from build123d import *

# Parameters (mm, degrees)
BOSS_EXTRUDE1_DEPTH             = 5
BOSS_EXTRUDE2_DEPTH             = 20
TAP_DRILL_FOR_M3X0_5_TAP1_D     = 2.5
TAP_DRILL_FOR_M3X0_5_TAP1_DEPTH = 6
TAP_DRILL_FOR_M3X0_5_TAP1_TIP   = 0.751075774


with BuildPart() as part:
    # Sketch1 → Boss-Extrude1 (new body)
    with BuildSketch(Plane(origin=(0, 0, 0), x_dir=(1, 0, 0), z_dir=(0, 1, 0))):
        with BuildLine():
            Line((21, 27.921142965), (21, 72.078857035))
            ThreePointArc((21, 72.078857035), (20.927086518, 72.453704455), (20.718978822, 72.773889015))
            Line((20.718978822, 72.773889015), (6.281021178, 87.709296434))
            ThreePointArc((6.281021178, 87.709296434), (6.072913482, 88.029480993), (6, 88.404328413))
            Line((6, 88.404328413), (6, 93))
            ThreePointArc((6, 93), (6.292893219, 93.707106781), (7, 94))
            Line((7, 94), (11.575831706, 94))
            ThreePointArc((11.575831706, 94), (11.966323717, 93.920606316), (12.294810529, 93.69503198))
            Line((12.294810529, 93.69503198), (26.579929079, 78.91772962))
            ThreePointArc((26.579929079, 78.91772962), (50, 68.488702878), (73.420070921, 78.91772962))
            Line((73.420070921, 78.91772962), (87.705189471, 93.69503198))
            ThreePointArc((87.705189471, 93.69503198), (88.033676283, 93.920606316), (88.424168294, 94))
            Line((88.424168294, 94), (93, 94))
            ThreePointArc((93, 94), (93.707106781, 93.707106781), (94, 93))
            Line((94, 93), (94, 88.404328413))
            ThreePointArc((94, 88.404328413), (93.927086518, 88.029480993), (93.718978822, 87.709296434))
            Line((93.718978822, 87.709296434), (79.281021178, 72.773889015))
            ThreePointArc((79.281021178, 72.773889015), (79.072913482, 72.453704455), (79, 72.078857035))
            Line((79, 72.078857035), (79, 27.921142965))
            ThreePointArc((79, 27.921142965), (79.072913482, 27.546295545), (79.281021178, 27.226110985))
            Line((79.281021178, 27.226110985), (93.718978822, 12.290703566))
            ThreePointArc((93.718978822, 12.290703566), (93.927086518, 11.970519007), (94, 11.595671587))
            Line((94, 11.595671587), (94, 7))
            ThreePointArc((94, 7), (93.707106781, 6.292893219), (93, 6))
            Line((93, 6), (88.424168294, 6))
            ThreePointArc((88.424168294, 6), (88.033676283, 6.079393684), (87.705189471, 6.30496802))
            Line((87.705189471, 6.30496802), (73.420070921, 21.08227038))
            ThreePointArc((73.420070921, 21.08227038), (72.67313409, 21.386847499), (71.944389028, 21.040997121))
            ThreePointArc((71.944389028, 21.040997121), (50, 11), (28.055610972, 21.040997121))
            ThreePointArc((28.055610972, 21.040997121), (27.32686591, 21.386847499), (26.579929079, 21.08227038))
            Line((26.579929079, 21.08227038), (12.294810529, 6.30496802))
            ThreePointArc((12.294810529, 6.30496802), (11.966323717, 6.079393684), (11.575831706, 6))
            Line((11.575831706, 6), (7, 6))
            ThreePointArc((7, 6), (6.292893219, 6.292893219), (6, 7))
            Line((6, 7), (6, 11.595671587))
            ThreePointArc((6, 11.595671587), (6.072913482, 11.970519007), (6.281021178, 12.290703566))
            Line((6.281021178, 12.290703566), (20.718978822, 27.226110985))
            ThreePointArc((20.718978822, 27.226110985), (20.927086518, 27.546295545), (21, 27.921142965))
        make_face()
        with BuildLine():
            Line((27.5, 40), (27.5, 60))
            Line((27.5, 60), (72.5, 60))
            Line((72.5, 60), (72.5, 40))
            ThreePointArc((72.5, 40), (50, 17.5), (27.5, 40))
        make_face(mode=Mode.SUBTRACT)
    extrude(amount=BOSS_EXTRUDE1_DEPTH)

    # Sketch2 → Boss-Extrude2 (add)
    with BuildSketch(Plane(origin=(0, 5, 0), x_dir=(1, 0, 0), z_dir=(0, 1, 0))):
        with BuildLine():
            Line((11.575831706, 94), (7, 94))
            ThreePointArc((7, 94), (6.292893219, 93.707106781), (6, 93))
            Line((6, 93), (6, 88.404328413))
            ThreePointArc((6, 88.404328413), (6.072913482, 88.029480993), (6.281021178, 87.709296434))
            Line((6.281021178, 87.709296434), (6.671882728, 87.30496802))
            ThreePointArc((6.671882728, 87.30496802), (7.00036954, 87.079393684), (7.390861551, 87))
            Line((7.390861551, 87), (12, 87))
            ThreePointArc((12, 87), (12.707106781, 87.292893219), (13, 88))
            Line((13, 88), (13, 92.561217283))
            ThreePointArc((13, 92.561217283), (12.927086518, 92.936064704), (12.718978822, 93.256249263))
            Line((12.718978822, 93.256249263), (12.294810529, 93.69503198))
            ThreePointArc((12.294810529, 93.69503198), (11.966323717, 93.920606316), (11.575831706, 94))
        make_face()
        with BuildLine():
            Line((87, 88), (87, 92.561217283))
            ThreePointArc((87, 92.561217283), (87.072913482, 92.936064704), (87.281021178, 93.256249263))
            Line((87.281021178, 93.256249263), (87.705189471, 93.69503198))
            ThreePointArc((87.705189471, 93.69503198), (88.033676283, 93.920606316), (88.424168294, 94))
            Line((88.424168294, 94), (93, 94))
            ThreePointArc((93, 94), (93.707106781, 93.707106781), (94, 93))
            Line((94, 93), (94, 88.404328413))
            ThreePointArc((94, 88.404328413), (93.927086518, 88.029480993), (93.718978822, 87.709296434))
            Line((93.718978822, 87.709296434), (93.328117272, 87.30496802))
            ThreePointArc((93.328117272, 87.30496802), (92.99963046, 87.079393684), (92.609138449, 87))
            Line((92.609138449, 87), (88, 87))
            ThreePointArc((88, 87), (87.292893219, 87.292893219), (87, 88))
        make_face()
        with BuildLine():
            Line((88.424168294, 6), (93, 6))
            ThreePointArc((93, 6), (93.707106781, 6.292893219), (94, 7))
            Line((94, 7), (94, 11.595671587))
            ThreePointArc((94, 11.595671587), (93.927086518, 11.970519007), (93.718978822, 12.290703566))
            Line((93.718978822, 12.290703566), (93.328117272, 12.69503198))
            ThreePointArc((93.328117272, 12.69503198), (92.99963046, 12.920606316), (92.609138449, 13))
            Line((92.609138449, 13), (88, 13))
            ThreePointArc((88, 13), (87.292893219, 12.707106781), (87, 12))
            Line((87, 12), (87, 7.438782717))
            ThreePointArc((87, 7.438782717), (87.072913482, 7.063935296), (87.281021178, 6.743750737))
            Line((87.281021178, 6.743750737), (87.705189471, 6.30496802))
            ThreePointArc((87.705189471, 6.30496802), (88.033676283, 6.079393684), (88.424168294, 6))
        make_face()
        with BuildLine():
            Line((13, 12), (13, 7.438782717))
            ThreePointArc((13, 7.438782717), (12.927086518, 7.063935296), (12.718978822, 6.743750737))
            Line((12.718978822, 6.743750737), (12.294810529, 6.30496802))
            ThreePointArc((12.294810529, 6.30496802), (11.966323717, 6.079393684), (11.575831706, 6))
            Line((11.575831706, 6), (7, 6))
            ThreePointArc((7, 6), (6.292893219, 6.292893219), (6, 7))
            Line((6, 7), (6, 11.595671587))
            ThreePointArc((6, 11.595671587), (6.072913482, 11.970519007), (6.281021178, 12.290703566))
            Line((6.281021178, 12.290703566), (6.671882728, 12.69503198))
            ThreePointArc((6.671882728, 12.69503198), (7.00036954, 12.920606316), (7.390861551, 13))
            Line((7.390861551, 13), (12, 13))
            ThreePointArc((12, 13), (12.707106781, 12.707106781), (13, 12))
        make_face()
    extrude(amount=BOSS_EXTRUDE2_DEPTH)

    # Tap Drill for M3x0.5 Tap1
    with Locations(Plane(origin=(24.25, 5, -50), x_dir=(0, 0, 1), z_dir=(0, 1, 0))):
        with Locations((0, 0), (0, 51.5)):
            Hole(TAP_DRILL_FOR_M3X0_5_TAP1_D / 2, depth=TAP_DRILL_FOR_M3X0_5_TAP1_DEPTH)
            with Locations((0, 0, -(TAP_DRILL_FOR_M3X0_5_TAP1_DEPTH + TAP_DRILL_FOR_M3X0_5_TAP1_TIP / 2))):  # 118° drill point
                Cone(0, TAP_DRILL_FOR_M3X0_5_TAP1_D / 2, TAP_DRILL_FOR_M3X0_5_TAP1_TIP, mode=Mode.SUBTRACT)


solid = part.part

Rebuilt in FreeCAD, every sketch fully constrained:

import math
import FreeCAD as App
import Part
import Sketcher

V = App.Vector

doc = App.newDocument("Part")
body = doc.addObject("PartDesign::Body", "Body")

sketch1 = body.newObject("Sketcher::SketchObject", "Sketch")
sketch1.AttachmentSupport = (doc.getObject("XZ_Plane"), [""])
sketch1.MapMode = "FlatFace"
sketch1.addGeometry(Part.LineSegment(V(21, -72.1, 0), V(21, -27.9, 0)), False)
sketch1.addGeometry(Part.ArcOfCircle(Part.Circle(V(20, -27.9, 0), V(0, 0, 1), 1), math.radians(0), math.radians(44)), False)
sketch1.addGeometry(Part.LineSegment(V(20.7, -27.2, 0), V(6.3, -12.3, 0)), False)
sketch1.addGeometry(Part.ArcOfCircle(Part.Circle(V(7, -11.6, 0), V(0, 0, 1), 1), math.radians(180), math.radians(224)), False)
sketch1.addGeometry(Part.LineSegment(V(6, -11.6, 0), V(6, -7, 0)), False)
sketch1.addGeometry(Part.ArcOfCircle(Part.Circle(V(7, -7, 0), V(0, 0, 1), 1), math.radians(90), math.radians(180)), False)
sketch1.addGeometry(Part.LineSegment(V(7, -6, 0), V(11.6, -6, 0)), False)
sketch1.addGeometry(Part.ArcOfCircle(Part.Circle(V(11.6, -7, 0), V(0, 0, 1), 1), math.radians(44), math.radians(90)), False)
sketch1.addGeometry(Part.LineSegment(V(12.3, -6.3, 0), V(26.6, -21.1, 0)), False)
sketch1.addGeometry(Part.ArcOfCircle(Part.Circle(V(27.3, -20.4, 0), V(0, 0, 1), 1), math.radians(-136), math.radians(-41)), False)
sketch1.addGeometry(Part.ArcOfCircle(Part.Circle(V(50, -40, 0), V(0, 0, 1), 29), math.radians(41), math.radians(139)), False)
sketch1.addGeometry(Part.ArcOfCircle(Part.Circle(V(72.7, -20.4, 0), V(0, 0, 1), 1), math.radians(-139), math.radians(-44)), False)
sketch1.addGeometry(Part.LineSegment(V(73.4, -21.1, 0), V(87.7, -6.3, 0)), False)
sketch1.addGeometry(Part.ArcOfCircle(Part.Circle(V(88.4, -7, 0), V(0, 0, 1), 1), math.radians(90), math.radians(136)), False)
sketch1.addGeometry(Part.LineSegment(V(88.4, -6, 0), V(93, -6, 0)), False)
sketch1.addGeometry(Part.ArcOfCircle(Part.Circle(V(93, -7, 0), V(0, 0, 1), 1), math.radians(0), math.radians(90)), False)
sketch1.addGeometry(Part.LineSegment(V(94, -7, 0), V(94, -11.6, 0)), False)
sketch1.addGeometry(Part.ArcOfCircle(Part.Circle(V(93, -11.6, 0), V(0, 0, 1), 1), math.radians(-44), math.radians(0)), False)
sketch1.addGeometry(Part.LineSegment(V(93.7, -12.3, 0), V(79.3, -27.2, 0)), False)
sketch1.addGeometry(Part.ArcOfCircle(Part.Circle(V(80, -27.9, 0), V(0, 0, 1), 1), math.radians(136), math.radians(180)), False)
sketch1.addGeometry(Part.LineSegment(V(79, -27.9, 0), V(79, -72.1, 0)), False)
sketch1.addGeometry(Part.ArcOfCircle(Part.Circle(V(80, -72.1, 0), V(0, 0, 1), 1), math.radians(180), math.radians(224)), False)
sketch1.addGeometry(Part.LineSegment(V(79.3, -72.8, 0), V(93.7, -87.7, 0)), False)
sketch1.addGeometry(Part.ArcOfCircle(Part.Circle(V(93, -88.4, 0), V(0, 0, 1), 1), math.radians(0), math.radians(44)), False)
sketch1.addGeometry(Part.LineSegment(V(94, -88.4, 0), V(94, -93, 0)), False)
sketch1.addGeometry(Part.ArcOfCircle(Part.Circle(V(93, -93, 0), V(0, 0, 1), 1), math.radians(-90), math.radians(0)), False)
sketch1.addGeometry(Part.LineSegment(V(93, -94, 0), V(88.4, -94, 0)), False)
sketch1.addGeometry(Part.ArcOfCircle(Part.Circle(V(88.4, -93, 0), V(0, 0, 1), 1), math.radians(-136), math.radians(-90)), False)
sketch1.addGeometry(Part.LineSegment(V(87.7, -93.7, 0), V(73.4, -78.9, 0)), False)
sketch1.addGeometry(Part.ArcOfCircle(Part.Circle(V(50, -100, 0), V(0, 0, 1), 31.5), math.radians(42), math.radians(138)), False)
sketch1.addGeometry(Part.LineSegment(V(26.6, -78.9, 0), V(12.3, -93.7, 0)), False)
sketch1.addGeometry(Part.ArcOfCircle(Part.Circle(V(11.6, -93, 0), V(0, 0, 1), 1), math.radians(-90), math.radians(-44)), False)
sketch1.addGeometry(Part.LineSegment(V(11.6, -94, 0), V(7, -94, 0)), False)
sketch1.addGeometry(Part.ArcOfCircle(Part.Circle(V(7, -93, 0), V(0, 0, 1), 1), math.radians(-180), math.radians(-90)), False)
sketch1.addGeometry(Part.LineSegment(V(6, -93, 0), V(6, -88.4, 0)), False)
sketch1.addGeometry(Part.ArcOfCircle(Part.Circle(V(7, -88.4, 0), V(0, 0, 1), 1), math.radians(136), math.radians(180)), False)
sketch1.addGeometry(Part.LineSegment(V(6.3, -87.7, 0), V(20.7, -72.8, 0)), False)
sketch1.addGeometry(Part.ArcOfCircle(Part.Circle(V(20, -72.1, 0), V(0, 0, 1), 1), math.radians(-44), math.radians(0)), False)
sketch1.addGeometry(Part.LineSegment(V(27.5, -40, 0), V(27.5, -60, 0)), False)
sketch1.addGeometry(Part.LineSegment(V(27.5, -60, 0), V(72.5, -60, 0)), False)
sketch1.addGeometry(Part.LineSegment(V(72.5, -60, 0), V(72.5, -40, 0)), False)
sketch1.addGeometry(Part.ArcOfCircle(Part.Circle(V(50, -40, 0), V(0, 0, 1), 22.5), math.radians(0), math.radians(180)), False)
sketch1.addConstraint(Sketcher.Constraint("Tangent", 0, 2, 1, 1))
sketch1.addConstraint(Sketcher.Constraint("Tangent", 1, 2, 2, 1))
sketch1.addConstraint(Sketcher.Constraint("Tangent", 2, 2, 3, 2))
sketch1.addConstraint(Sketcher.Constraint("Tangent", 3, 1, 4, 1))
sketch1.addConstraint(Sketcher.Constraint("Tangent", 4, 2, 5, 2))
sketch1.addConstraint(Sketcher.Constraint("Tangent", 5, 1, 6, 1))
sketch1.addConstraint(Sketcher.Constraint("Tangent", 6, 2, 7, 2))
sketch1.addConstraint(Sketcher.Constraint("Tangent", 7, 1, 8, 1))
sketch1.addConstraint(Sketcher.Constraint("Tangent", 8, 2, 9, 1))
sketch1.addConstraint(Sketcher.Constraint("Tangent", 9, 2, 10, 2))
sketch1.addConstraint(Sketcher.Constraint("Tangent", 10, 1, 11, 1))
sketch1.addConstraint(Sketcher.Constraint("Tangent", 11, 2, 12, 1))
sketch1.addConstraint(Sketcher.Constraint("Tangent", 12, 2, 13, 2))
sketch1.addConstraint(Sketcher.Constraint("Tangent", 13, 1, 14, 1))
sketch1.addConstraint(Sketcher.Constraint("Tangent", 14, 2, 15, 2))
sketch1.addConstraint(Sketcher.Constraint("Tangent", 15, 1, 16, 1))
sketch1.addConstraint(Sketcher.Constraint("Tangent", 16, 2, 17, 2))
sketch1.addConstraint(Sketcher.Constraint("Tangent", 17, 1, 18, 1))
sketch1.addConstraint(Sketcher.Constraint("Tangent", 18, 2, 19, 1))
sketch1.addConstraint(Sketcher.Constraint("Tangent", 19, 2, 20, 1))
sketch1.addConstraint(Sketcher.Constraint("Tangent", 20, 2, 21, 1))
sketch1.addConstraint(Sketcher.Constraint("Tangent", 21, 2, 22, 1))
sketch1.addConstraint(Sketcher.Constraint("Tangent", 22, 2, 23, 2))
sketch1.addConstraint(Sketcher.Constraint("Tangent", 23, 1, 24, 1))
sketch1.addConstraint(Sketcher.Constraint("Tangent", 24, 2, 25, 2))
sketch1.addConstraint(Sketcher.Constraint("Tangent", 25, 1, 26, 1))
sketch1.addConstraint(Sketcher.Constraint("Tangent", 26, 2, 27, 2))
sketch1.addConstraint(Sketcher.Constraint("Tangent", 27, 1, 28, 1))
sketch1.addConstraint(Sketcher.Constraint("Coincident", 28, 2, 29, 1))
sketch1.addConstraint(Sketcher.Constraint("Coincident", 29, 2, 30, 1))
sketch1.addConstraint(Sketcher.Constraint("Tangent", 30, 2, 31, 2))
sketch1.addConstraint(Sketcher.Constraint("Tangent", 31, 1, 32, 1))
sketch1.addConstraint(Sketcher.Constraint("Tangent", 32, 2, 33, 2))
sketch1.addConstraint(Sketcher.Constraint("Tangent", 33, 1, 34, 1))
sketch1.addConstraint(Sketcher.Constraint("Tangent", 34, 2, 35, 2))
sketch1.addConstraint(Sketcher.Constraint("Tangent", 35, 1, 36, 1))
sketch1.addConstraint(Sketcher.Constraint("Tangent", 36, 2, 37, 1))
sketch1.addConstraint(Sketcher.Constraint("Tangent", 37, 2, 0, 1))
sketch1.addConstraint(Sketcher.Constraint("Coincident", 38, 2, 39, 1))
sketch1.addConstraint(Sketcher.Constraint("Coincident", 39, 2, 40, 1))
sketch1.addConstraint(Sketcher.Constraint("Tangent", 40, 2, 41, 1))
sketch1.addConstraint(Sketcher.Constraint("Tangent", 41, 2, 38, 1))
sketch1.addConstraint(Sketcher.Constraint("Vertical", 0))
sketch1.addConstraint(Sketcher.Constraint("Vertical", 4))
sketch1.addConstraint(Sketcher.Constraint("Horizontal", 6))
sketch1.addConstraint(Sketcher.Constraint("Horizontal", 14))
sketch1.addConstraint(Sketcher.Constraint("Vertical", 16))
sketch1.addConstraint(Sketcher.Constraint("Vertical", 20))
sketch1.addConstraint(Sketcher.Constraint("Vertical", 24))
sketch1.addConstraint(Sketcher.Constraint("Horizontal", 26))
sketch1.addConstraint(Sketcher.Constraint("Horizontal", 32))
sketch1.addConstraint(Sketcher.Constraint("Vertical", 34))
sketch1.addConstraint(Sketcher.Constraint("Vertical", 38))
sketch1.addConstraint(Sketcher.Constraint("Horizontal", 39))
sketch1.addConstraint(Sketcher.Constraint("Vertical", 40))
sketch1.addConstraint(Sketcher.Constraint("Coincident", 41, 3, 10, 3))
sketch1.addConstraint(Sketcher.Constraint("Equal", 1, 3))
sketch1.addConstraint(Sketcher.Constraint("Equal", 3, 5))
sketch1.addConstraint(Sketcher.Constraint("Equal", 5, 7))
sketch1.addConstraint(Sketcher.Constraint("Equal", 7, 9))
sketch1.addConstraint(Sketcher.Constraint("Equal", 9, 11))
sketch1.addConstraint(Sketcher.Constraint("Equal", 11, 13))
sketch1.addConstraint(Sketcher.Constraint("Equal", 13, 15))
sketch1.addConstraint(Sketcher.Constraint("Equal", 15, 17))
sketch1.addConstraint(Sketcher.Constraint("Equal", 17, 19))
sketch1.addConstraint(Sketcher.Constraint("Equal", 19, 21))
sketch1.addConstraint(Sketcher.Constraint("Equal", 21, 23))
sketch1.addConstraint(Sketcher.Constraint("Equal", 23, 25))
sketch1.addConstraint(Sketcher.Constraint("Equal", 25, 27))
sketch1.addConstraint(Sketcher.Constraint("Equal", 27, 31))
sketch1.addConstraint(Sketcher.Constraint("Equal", 31, 33))
sketch1.addConstraint(Sketcher.Constraint("Equal", 33, 35))
sketch1.addConstraint(Sketcher.Constraint("Equal", 35, 37))
sketch1.addConstraint(Sketcher.Constraint("Parallel", 2, 8))
sketch1.addConstraint(Sketcher.Constraint("Parallel", 12, 18))
sketch1.addConstraint(Sketcher.Constraint("Parallel", 8, 22))
sketch1.addConstraint(Sketcher.Constraint("Parallel", 22, 28))
sketch1.addConstraint(Sketcher.Constraint("Parallel", 18, 30))
sketch1.addConstraint(Sketcher.Constraint("Parallel", 30, 36))
sketch1.addConstraint(Sketcher.Constraint("Horizontal", 9, 3, 11, 3))
sketch1.addConstraint(Sketcher.Constraint("Horizontal", 7, 3, 13, 3))
sketch1.addConstraint(Sketcher.Constraint("Horizontal", 3, 3, 17, 3))
sketch1.addConstraint(Sketcher.Constraint("Horizontal", 1, 3, 19, 3))
sketch1.addConstraint(Sketcher.Constraint("Horizontal", 27, 3, 31, 3))
sketch1.addConstraint(Sketcher.Constraint("Horizontal", 23, 3, 35, 3))
sketch1.addConstraint(Sketcher.Constraint("Horizontal", 21, 3, 37, 3))
sketch1.addConstraint(Sketcher.Constraint("Horizontal", 8, 2, 11, 2))
sketch1.addConstraint(Sketcher.Constraint("Horizontal", 28, 2, 29, 2))
sketch1.addConstraint(Sketcher.Constraint("Vertical", 17, 3, 23, 3))
sketch1.addConstraint(Sketcher.Constraint("Vertical", 13, 3, 27, 3))
sketch1.addConstraint(Sketcher.Constraint("Vertical", 10, 3, 29, 3))
sketch1.addConstraint(Sketcher.Constraint("Vertical", 11, 2, 28, 2))
sketch1.addConstraint(Sketcher.Constraint("Equal", 6, 14))
sketch1.addConstraint(Sketcher.Constraint("Equal", 16, 24))
sketch1.addConstraint(Sketcher.Constraint("Radius", 1, 1.0))
sketch1.addConstraint(Sketcher.Constraint("Radius", 10, 29.0))
sketch1.addConstraint(Sketcher.Constraint("Radius", 41, 22.5))
sketch1.addConstraint(Sketcher.Constraint("DistanceY", 38, 2, 38, 1, 20.0))
sketch1.addConstraint(Sketcher.Constraint("DistanceX", -1, 1, 1, 3, 20.0))
sketch1.addConstraint(Sketcher.Constraint("DistanceX", -1, 1, 3, 3, 7.0))
sketch1.addConstraint(Sketcher.Constraint("DistanceY", 5, 3, -1, 1, 7.0))
sketch1.addConstraint(Sketcher.Constraint("DistanceX", -1, 1, 10, 3, 50.0))
sketch1.addConstraint(Sketcher.Constraint("DistanceY", 10, 3, -1, 1, 40.0))
sketch1.addConstraint(Sketcher.Constraint("DistanceY", 25, 3, -1, 1, 93.0))
sketch1.addConstraint(Sketcher.Constraint("DistanceY", 29, 3, -1, 1, 100.0))
sketch1.addConstraint(Sketcher.Constraint("Radius", 29, 31.511297))
sketch1.addConstraint(Sketcher.Constraint("DistanceX", 6, 1, 6, 2, 4.575832))
sketch1.addConstraint(Sketcher.Constraint("DistanceY", 4, 1, 4, 2, 4.595672))
pad1 = body.newObject("PartDesign::Pad", "Pad")
pad1.Profile = sketch1
pad1.Length = 5
pad1.Reversed = True

sketch2 = body.newObject("Sketcher::SketchObject", "Sketch001")
sketch2.AttachmentSupport = (doc.getObject("XZ_Plane"), [""])
sketch2.MapMode = "FlatFace"
sketch2.AttachmentOffset = App.Placement(V(0, 0, -5), App.Rotation())
sketch2.addGeometry(Part.LineSegment(V(11.6, -94, 0), V(7, -94, 0)), False)
sketch2.addGeometry(Part.ArcOfCircle(Part.Circle(V(7, -93, 0), V(0, 0, 1), 1), math.radians(-180), math.radians(-90)), False)
sketch2.addGeometry(Part.LineSegment(V(6, -93, 0), V(6, -88.4, 0)), False)
sketch2.addGeometry(Part.ArcOfCircle(Part.Circle(V(7, -88.4, 0), V(0, 0, 1), 1), math.radians(136), math.radians(180)), False)
sketch2.addGeometry(Part.LineSegment(V(6.3, -87.7, 0), V(6.7, -87.3, 0)), False)
sketch2.addGeometry(Part.ArcOfCircle(Part.Circle(V(7.4, -88, 0), V(0, 0, 1), 1), math.radians(90), math.radians(136)), False)
sketch2.addGeometry(Part.LineSegment(V(7.4, -87, 0), V(12, -87, 0)), False)
sketch2.addGeometry(Part.ArcOfCircle(Part.Circle(V(12, -88, 0), V(0, 0, 1), 1), math.radians(0), math.radians(90)), False)
sketch2.addGeometry(Part.LineSegment(V(13, -88, 0), V(13, -92.6, 0)), False)
sketch2.addGeometry(Part.ArcOfCircle(Part.Circle(V(12, -92.6, 0), V(0, 0, 1), 1), math.radians(-44), math.radians(0)), False)
sketch2.addGeometry(Part.LineSegment(V(12.7, -93.3, 0), V(12.3, -93.7, 0)), False)
sketch2.addGeometry(Part.ArcOfCircle(Part.Circle(V(11.6, -93, 0), V(0, 0, 1), 1), math.radians(-90), math.radians(-44)), False)
sketch2.addGeometry(Part.LineSegment(V(87, -92.6, 0), V(87, -88, 0)), False)
sketch2.addGeometry(Part.ArcOfCircle(Part.Circle(V(88, -88, 0), V(0, 0, 1), 1), math.radians(90), math.radians(180)), False)
sketch2.addGeometry(Part.LineSegment(V(88, -87, 0), V(92.6, -87, 0)), False)
sketch2.addGeometry(Part.ArcOfCircle(Part.Circle(V(92.6, -88, 0), V(0, 0, 1), 1), math.radians(44), math.radians(90)), False)
sketch2.addGeometry(Part.LineSegment(V(93.3, -87.3, 0), V(93.7, -87.7, 0)), False)
sketch2.addGeometry(Part.ArcOfCircle(Part.Circle(V(93, -88.4, 0), V(0, 0, 1), 1), math.radians(0), math.radians(44)), False)
sketch2.addGeometry(Part.LineSegment(V(94, -88.4, 0), V(94, -93, 0)), False)
sketch2.addGeometry(Part.ArcOfCircle(Part.Circle(V(93, -93, 0), V(0, 0, 1), 1), math.radians(-90), math.radians(0)), False)
sketch2.addGeometry(Part.LineSegment(V(93, -94, 0), V(88.4, -94, 0)), False)
sketch2.addGeometry(Part.ArcOfCircle(Part.Circle(V(88.4, -93, 0), V(0, 0, 1), 1), math.radians(-136), math.radians(-90)), False)
sketch2.addGeometry(Part.LineSegment(V(87.7, -93.7, 0), V(87.3, -93.3, 0)), False)
sketch2.addGeometry(Part.ArcOfCircle(Part.Circle(V(88, -92.6, 0), V(0, 0, 1), 1), math.radians(180), math.radians(224)), False)
sketch2.addGeometry(Part.LineSegment(V(88.4, -6, 0), V(93, -6, 0)), False)
sketch2.addGeometry(Part.ArcOfCircle(Part.Circle(V(93, -7, 0), V(0, 0, 1), 1), math.radians(0), math.radians(90)), False)
sketch2.addGeometry(Part.LineSegment(V(94, -7, 0), V(94, -11.6, 0)), False)
sketch2.addGeometry(Part.ArcOfCircle(Part.Circle(V(93, -11.6, 0), V(0, 0, 1), 1), math.radians(-44), math.radians(0)), False)
sketch2.addGeometry(Part.LineSegment(V(93.7, -12.3, 0), V(93.3, -12.7, 0)), False)
sketch2.addGeometry(Part.ArcOfCircle(Part.Circle(V(92.6, -12, 0), V(0, 0, 1), 1), math.radians(-90), math.radians(-44)), False)
sketch2.addGeometry(Part.LineSegment(V(92.6, -13, 0), V(88, -13, 0)), False)
sketch2.addGeometry(Part.ArcOfCircle(Part.Circle(V(88, -12, 0), V(0, 0, 1), 1), math.radians(-180), math.radians(-90)), False)
sketch2.addGeometry(Part.LineSegment(V(87, -12, 0), V(87, -7.4, 0)), False)
sketch2.addGeometry(Part.ArcOfCircle(Part.Circle(V(88, -7.4, 0), V(0, 0, 1), 1), math.radians(136), math.radians(180)), False)
sketch2.addGeometry(Part.LineSegment(V(87.3, -6.7, 0), V(87.7, -6.3, 0)), False)
sketch2.addGeometry(Part.ArcOfCircle(Part.Circle(V(88.4, -7, 0), V(0, 0, 1), 1), math.radians(90), math.radians(136)), False)
sketch2.addGeometry(Part.LineSegment(V(13, -7.4, 0), V(13, -12, 0)), False)
sketch2.addGeometry(Part.ArcOfCircle(Part.Circle(V(12, -12, 0), V(0, 0, 1), 1), math.radians(-90), math.radians(0)), False)
sketch2.addGeometry(Part.LineSegment(V(12, -13, 0), V(7.4, -13, 0)), False)
sketch2.addGeometry(Part.ArcOfCircle(Part.Circle(V(7.4, -12, 0), V(0, 0, 1), 1), math.radians(-136), math.radians(-90)), False)
sketch2.addGeometry(Part.LineSegment(V(6.7, -12.7, 0), V(6.3, -12.3, 0)), False)
sketch2.addGeometry(Part.ArcOfCircle(Part.Circle(V(7, -11.6, 0), V(0, 0, 1), 1), math.radians(180), math.radians(224)), False)
sketch2.addGeometry(Part.LineSegment(V(6, -11.6, 0), V(6, -7, 0)), False)
sketch2.addGeometry(Part.ArcOfCircle(Part.Circle(V(7, -7, 0), V(0, 0, 1), 1), math.radians(90), math.radians(180)), False)
sketch2.addGeometry(Part.LineSegment(V(7, -6, 0), V(11.6, -6, 0)), False)
sketch2.addGeometry(Part.ArcOfCircle(Part.Circle(V(11.6, -7, 0), V(0, 0, 1), 1), math.radians(44), math.radians(90)), False)
sketch2.addGeometry(Part.LineSegment(V(12.3, -6.3, 0), V(12.7, -6.7, 0)), False)
sketch2.addGeometry(Part.ArcOfCircle(Part.Circle(V(12, -7.4, 0), V(0, 0, 1), 1), math.radians(0), math.radians(44)), False)
sketch2.addConstraint(Sketcher.Constraint("Tangent", 0, 2, 1, 2))
sketch2.addConstraint(Sketcher.Constraint("Tangent", 1, 1, 2, 1))
sketch2.addConstraint(Sketcher.Constraint("Tangent", 2, 2, 3, 2))
sketch2.addConstraint(Sketcher.Constraint("Tangent", 3, 1, 4, 1))
sketch2.addConstraint(Sketcher.Constraint("Tangent", 4, 2, 5, 2))
sketch2.addConstraint(Sketcher.Constraint("Tangent", 5, 1, 6, 1))
sketch2.addConstraint(Sketcher.Constraint("Tangent", 6, 2, 7, 2))
sketch2.addConstraint(Sketcher.Constraint("Tangent", 7, 1, 8, 1))
sketch2.addConstraint(Sketcher.Constraint("Tangent", 8, 2, 9, 2))
sketch2.addConstraint(Sketcher.Constraint("Tangent", 9, 1, 10, 1))
sketch2.addConstraint(Sketcher.Constraint("Tangent", 10, 2, 11, 2))
sketch2.addConstraint(Sketcher.Constraint("Tangent", 11, 1, 0, 1))
sketch2.addConstraint(Sketcher.Constraint("Tangent", 12, 2, 13, 2))
sketch2.addConstraint(Sketcher.Constraint("Tangent", 13, 1, 14, 1))
sketch2.addConstraint(Sketcher.Constraint("Tangent", 14, 2, 15, 2))
sketch2.addConstraint(Sketcher.Constraint("Tangent", 15, 1, 16, 1))
sketch2.addConstraint(Sketcher.Constraint("Tangent", 16, 2, 17, 2))
sketch2.addConstraint(Sketcher.Constraint("Tangent", 17, 1, 18, 1))
sketch2.addConstraint(Sketcher.Constraint("Tangent", 18, 2, 19, 2))
sketch2.addConstraint(Sketcher.Constraint("Tangent", 19, 1, 20, 1))
sketch2.addConstraint(Sketcher.Constraint("Tangent", 20, 2, 21, 2))
sketch2.addConstraint(Sketcher.Constraint("Tangent", 21, 1, 22, 1))
sketch2.addConstraint(Sketcher.Constraint("Tangent", 22, 2, 23, 2))
sketch2.addConstraint(Sketcher.Constraint("Tangent", 23, 1, 12, 1))
sketch2.addConstraint(Sketcher.Constraint("Tangent", 24, 2, 25, 2))
sketch2.addConstraint(Sketcher.Constraint("Tangent", 25, 1, 26, 1))
sketch2.addConstraint(Sketcher.Constraint("Tangent", 26, 2, 27, 2))
sketch2.addConstraint(Sketcher.Constraint("Tangent", 27, 1, 28, 1))
sketch2.addConstraint(Sketcher.Constraint("Tangent", 28, 2, 29, 2))
sketch2.addConstraint(Sketcher.Constraint("Tangent", 29, 1, 30, 1))
sketch2.addConstraint(Sketcher.Constraint("Tangent", 30, 2, 31, 2))
sketch2.addConstraint(Sketcher.Constraint("Tangent", 31, 1, 32, 1))
sketch2.addConstraint(Sketcher.Constraint("Tangent", 32, 2, 33, 2))
sketch2.addConstraint(Sketcher.Constraint("Tangent", 33, 1, 34, 1))
sketch2.addConstraint(Sketcher.Constraint("Tangent", 34, 2, 35, 2))
sketch2.addConstraint(Sketcher.Constraint("Tangent", 35, 1, 24, 1))
sketch2.addConstraint(Sketcher.Constraint("Tangent", 36, 2, 37, 2))
sketch2.addConstraint(Sketcher.Constraint("Tangent", 37, 1, 38, 1))
sketch2.addConstraint(Sketcher.Constraint("Tangent", 38, 2, 39, 2))
sketch2.addConstraint(Sketcher.Constraint("Tangent", 39, 1, 40, 1))
sketch2.addConstraint(Sketcher.Constraint("Tangent", 40, 2, 41, 2))
sketch2.addConstraint(Sketcher.Constraint("Tangent", 41, 1, 42, 1))
sketch2.addConstraint(Sketcher.Constraint("Tangent", 42, 2, 43, 2))
sketch2.addConstraint(Sketcher.Constraint("Tangent", 43, 1, 44, 1))
sketch2.addConstraint(Sketcher.Constraint("Tangent", 44, 2, 45, 2))
sketch2.addConstraint(Sketcher.Constraint("Tangent", 45, 1, 46, 1))
sketch2.addConstraint(Sketcher.Constraint("Tangent", 46, 2, 47, 2))
sketch2.addConstraint(Sketcher.Constraint("Tangent", 47, 1, 36, 1))
sketch2.addConstraint(Sketcher.Constraint("Horizontal", 0))
sketch2.addConstraint(Sketcher.Constraint("Vertical", 2))
sketch2.addConstraint(Sketcher.Constraint("Horizontal", 6))
sketch2.addConstraint(Sketcher.Constraint("Vertical", 8))
sketch2.addConstraint(Sketcher.Constraint("Vertical", 12))
sketch2.addConstraint(Sketcher.Constraint("Horizontal", 14))
sketch2.addConstraint(Sketcher.Constraint("Vertical", 18))
sketch2.addConstraint(Sketcher.Constraint("Horizontal", 20))
sketch2.addConstraint(Sketcher.Constraint("Horizontal", 24))
sketch2.addConstraint(Sketcher.Constraint("Vertical", 26))
sketch2.addConstraint(Sketcher.Constraint("Horizontal", 30))
sketch2.addConstraint(Sketcher.Constraint("Vertical", 32))
sketch2.addConstraint(Sketcher.Constraint("Vertical", 36))
sketch2.addConstraint(Sketcher.Constraint("Horizontal", 38))
sketch2.addConstraint(Sketcher.Constraint("Vertical", 42))
sketch2.addConstraint(Sketcher.Constraint("Horizontal", 44))
sketch2.addConstraint(Sketcher.Constraint("Equal", 1, 3))
sketch2.addConstraint(Sketcher.Constraint("Equal", 3, 5))
sketch2.addConstraint(Sketcher.Constraint("Equal", 5, 7))
sketch2.addConstraint(Sketcher.Constraint("Equal", 7, 9))
sketch2.addConstraint(Sketcher.Constraint("Equal", 9, 11))
sketch2.addConstraint(Sketcher.Constraint("Equal", 11, 13))
sketch2.addConstraint(Sketcher.Constraint("Equal", 13, 15))
sketch2.addConstraint(Sketcher.Constraint("Equal", 15, 17))
sketch2.addConstraint(Sketcher.Constraint("Equal", 17, 19))
sketch2.addConstraint(Sketcher.Constraint("Equal", 19, 21))
sketch2.addConstraint(Sketcher.Constraint("Equal", 21, 23))
sketch2.addConstraint(Sketcher.Constraint("Equal", 23, 25))
sketch2.addConstraint(Sketcher.Constraint("Equal", 25, 27))
sketch2.addConstraint(Sketcher.Constraint("Equal", 27, 29))
sketch2.addConstraint(Sketcher.Constraint("Equal", 29, 31))
sketch2.addConstraint(Sketcher.Constraint("Equal", 31, 33))
sketch2.addConstraint(Sketcher.Constraint("Equal", 33, 35))
sketch2.addConstraint(Sketcher.Constraint("Equal", 35, 37))
sketch2.addConstraint(Sketcher.Constraint("Equal", 37, 39))
sketch2.addConstraint(Sketcher.Constraint("Equal", 39, 41))
sketch2.addConstraint(Sketcher.Constraint("Equal", 41, 43))
sketch2.addConstraint(Sketcher.Constraint("Equal", 43, 45))
sketch2.addConstraint(Sketcher.Constraint("Equal", 45, 47))
sketch2.addConstraint(Sketcher.Constraint("Parallel", 4, 10))
sketch2.addConstraint(Sketcher.Constraint("Parallel", 16, 22))
sketch2.addConstraint(Sketcher.Constraint("Parallel", 10, 28))
sketch2.addConstraint(Sketcher.Constraint("Parallel", 28, 34))
sketch2.addConstraint(Sketcher.Constraint("Parallel", 22, 40))
sketch2.addConstraint(Sketcher.Constraint("Parallel", 40, 46))
sketch2.addConstraint(Sketcher.Constraint("Horizontal", 7, 3, 13, 3))
sketch2.addConstraint(Sketcher.Constraint("Horizontal", 3, 3, 17, 3))
sketch2.addConstraint(Sketcher.Constraint("Horizontal", 11, 3, 19, 3))
sketch2.addConstraint(Sketcher.Constraint("Horizontal", 9, 3, 23, 3))
sketch2.addConstraint(Sketcher.Constraint("Horizontal", 31, 3, 37, 3))
sketch2.addConstraint(Sketcher.Constraint("Horizontal", 27, 3, 41, 3))
sketch2.addConstraint(Sketcher.Constraint("Horizontal", 35, 3, 43, 3))
sketch2.addConstraint(Sketcher.Constraint("Horizontal", 33, 3, 47, 3))
sketch2.addConstraint(Sketcher.Constraint("Horizontal", 4, 2, 15, 1))
sketch2.addConstraint(Sketcher.Constraint("Vertical", 19, 3, 25, 3))
sketch2.addConstraint(Sketcher.Constraint("Vertical", 15, 3, 29, 3))
sketch2.addConstraint(Sketcher.Constraint("Vertical", 23, 3, 31, 3))
sketch2.addConstraint(Sketcher.Constraint("Vertical", 21, 3, 35, 3))
sketch2.addConstraint(Sketcher.Constraint("Vertical", 9, 3, 37, 3))
sketch2.addConstraint(Sketcher.Constraint("Vertical", 5, 3, 39, 3))
sketch2.addConstraint(Sketcher.Constraint("Equal", 6, 14))
sketch2.addConstraint(Sketcher.Constraint("Equal", 18, 26))
sketch2.addConstraint(Sketcher.Constraint("Radius", 1, 1.0))
sketch2.addConstraint(Sketcher.Constraint("DistanceX", -1, 1, 1, 3, 7.0))
sketch2.addConstraint(Sketcher.Constraint("DistanceY", 1, 3, -1, 1, 93.0))
sketch2.addConstraint(Sketcher.Constraint("DistanceY", 5, 3, -1, 1, 88.0))
sketch2.addConstraint(Sketcher.Constraint("DistanceX", -1, 1, 7, 3, 12.0))
sketch2.addConstraint(Sketcher.Constraint("DistanceX", -1, 1, 13, 3, 88.0))
sketch2.addConstraint(Sketcher.Constraint("DistanceY", 25, 3, -1, 1, 7.0))
sketch2.addConstraint(Sketcher.Constraint("DistanceX", 0, 2, 0, 1, 4.575832))
sketch2.addConstraint(Sketcher.Constraint("DistanceX", 6, 1, 6, 2, 4.609138))
sketch2.addConstraint(Sketcher.Constraint("DistanceY", 2, 1, 2, 2, 4.595672))
pad2 = body.newObject("PartDesign::Pad", "Pad001")
pad2.Profile = sketch2
pad2.Length = 20
pad2.Reversed = True

sketch3 = body.newObject("Sketcher::SketchObject", "Sketch002")
sketch3.AttachmentSupport = (doc.getObject("XZ_Plane"), [""])
sketch3.MapMode = "FlatFace"
sketch3.AttachmentOffset = App.Placement(V(0, 0, -5), App.Rotation())
sketch3.addGeometry(Part.Circle(V(24.2, -50, 0), V(0, 0, 1), 1.2), False)
sketch3.addGeometry(Part.Circle(V(75.8, -50, 0), V(0, 0, 1), 1.2), False)
sketch3.addConstraint(Sketcher.Constraint("Equal", 0, 1))
sketch3.addConstraint(Sketcher.Constraint("Horizontal", 0, 3, 1, 3))
sketch3.addConstraint(Sketcher.Constraint("Diameter", 0, 2.5))
sketch3.addConstraint(Sketcher.Constraint("DistanceY", 0, 3, -1, 1, 50.0))
sketch3.addConstraint(Sketcher.Constraint("DistanceX", 0, 3, 1, 3, 51.5))
sketch3.addConstraint(Sketcher.Constraint("DistanceX", -1, 1, 0, 3, 24.25))
doc.recompute()
hole = body.newObject("PartDesign::Hole", "Hole")
hole.Profile = sketch3
hole.ThreadType = "None"
hole.Diameter = 2.5
hole.DepthType = "Dimension"
hole.Depth = 6
hole.DrillPoint = "Angled"
hole.DrillPointAngle = 118
hole.Reversed = True

doc.recompute()
